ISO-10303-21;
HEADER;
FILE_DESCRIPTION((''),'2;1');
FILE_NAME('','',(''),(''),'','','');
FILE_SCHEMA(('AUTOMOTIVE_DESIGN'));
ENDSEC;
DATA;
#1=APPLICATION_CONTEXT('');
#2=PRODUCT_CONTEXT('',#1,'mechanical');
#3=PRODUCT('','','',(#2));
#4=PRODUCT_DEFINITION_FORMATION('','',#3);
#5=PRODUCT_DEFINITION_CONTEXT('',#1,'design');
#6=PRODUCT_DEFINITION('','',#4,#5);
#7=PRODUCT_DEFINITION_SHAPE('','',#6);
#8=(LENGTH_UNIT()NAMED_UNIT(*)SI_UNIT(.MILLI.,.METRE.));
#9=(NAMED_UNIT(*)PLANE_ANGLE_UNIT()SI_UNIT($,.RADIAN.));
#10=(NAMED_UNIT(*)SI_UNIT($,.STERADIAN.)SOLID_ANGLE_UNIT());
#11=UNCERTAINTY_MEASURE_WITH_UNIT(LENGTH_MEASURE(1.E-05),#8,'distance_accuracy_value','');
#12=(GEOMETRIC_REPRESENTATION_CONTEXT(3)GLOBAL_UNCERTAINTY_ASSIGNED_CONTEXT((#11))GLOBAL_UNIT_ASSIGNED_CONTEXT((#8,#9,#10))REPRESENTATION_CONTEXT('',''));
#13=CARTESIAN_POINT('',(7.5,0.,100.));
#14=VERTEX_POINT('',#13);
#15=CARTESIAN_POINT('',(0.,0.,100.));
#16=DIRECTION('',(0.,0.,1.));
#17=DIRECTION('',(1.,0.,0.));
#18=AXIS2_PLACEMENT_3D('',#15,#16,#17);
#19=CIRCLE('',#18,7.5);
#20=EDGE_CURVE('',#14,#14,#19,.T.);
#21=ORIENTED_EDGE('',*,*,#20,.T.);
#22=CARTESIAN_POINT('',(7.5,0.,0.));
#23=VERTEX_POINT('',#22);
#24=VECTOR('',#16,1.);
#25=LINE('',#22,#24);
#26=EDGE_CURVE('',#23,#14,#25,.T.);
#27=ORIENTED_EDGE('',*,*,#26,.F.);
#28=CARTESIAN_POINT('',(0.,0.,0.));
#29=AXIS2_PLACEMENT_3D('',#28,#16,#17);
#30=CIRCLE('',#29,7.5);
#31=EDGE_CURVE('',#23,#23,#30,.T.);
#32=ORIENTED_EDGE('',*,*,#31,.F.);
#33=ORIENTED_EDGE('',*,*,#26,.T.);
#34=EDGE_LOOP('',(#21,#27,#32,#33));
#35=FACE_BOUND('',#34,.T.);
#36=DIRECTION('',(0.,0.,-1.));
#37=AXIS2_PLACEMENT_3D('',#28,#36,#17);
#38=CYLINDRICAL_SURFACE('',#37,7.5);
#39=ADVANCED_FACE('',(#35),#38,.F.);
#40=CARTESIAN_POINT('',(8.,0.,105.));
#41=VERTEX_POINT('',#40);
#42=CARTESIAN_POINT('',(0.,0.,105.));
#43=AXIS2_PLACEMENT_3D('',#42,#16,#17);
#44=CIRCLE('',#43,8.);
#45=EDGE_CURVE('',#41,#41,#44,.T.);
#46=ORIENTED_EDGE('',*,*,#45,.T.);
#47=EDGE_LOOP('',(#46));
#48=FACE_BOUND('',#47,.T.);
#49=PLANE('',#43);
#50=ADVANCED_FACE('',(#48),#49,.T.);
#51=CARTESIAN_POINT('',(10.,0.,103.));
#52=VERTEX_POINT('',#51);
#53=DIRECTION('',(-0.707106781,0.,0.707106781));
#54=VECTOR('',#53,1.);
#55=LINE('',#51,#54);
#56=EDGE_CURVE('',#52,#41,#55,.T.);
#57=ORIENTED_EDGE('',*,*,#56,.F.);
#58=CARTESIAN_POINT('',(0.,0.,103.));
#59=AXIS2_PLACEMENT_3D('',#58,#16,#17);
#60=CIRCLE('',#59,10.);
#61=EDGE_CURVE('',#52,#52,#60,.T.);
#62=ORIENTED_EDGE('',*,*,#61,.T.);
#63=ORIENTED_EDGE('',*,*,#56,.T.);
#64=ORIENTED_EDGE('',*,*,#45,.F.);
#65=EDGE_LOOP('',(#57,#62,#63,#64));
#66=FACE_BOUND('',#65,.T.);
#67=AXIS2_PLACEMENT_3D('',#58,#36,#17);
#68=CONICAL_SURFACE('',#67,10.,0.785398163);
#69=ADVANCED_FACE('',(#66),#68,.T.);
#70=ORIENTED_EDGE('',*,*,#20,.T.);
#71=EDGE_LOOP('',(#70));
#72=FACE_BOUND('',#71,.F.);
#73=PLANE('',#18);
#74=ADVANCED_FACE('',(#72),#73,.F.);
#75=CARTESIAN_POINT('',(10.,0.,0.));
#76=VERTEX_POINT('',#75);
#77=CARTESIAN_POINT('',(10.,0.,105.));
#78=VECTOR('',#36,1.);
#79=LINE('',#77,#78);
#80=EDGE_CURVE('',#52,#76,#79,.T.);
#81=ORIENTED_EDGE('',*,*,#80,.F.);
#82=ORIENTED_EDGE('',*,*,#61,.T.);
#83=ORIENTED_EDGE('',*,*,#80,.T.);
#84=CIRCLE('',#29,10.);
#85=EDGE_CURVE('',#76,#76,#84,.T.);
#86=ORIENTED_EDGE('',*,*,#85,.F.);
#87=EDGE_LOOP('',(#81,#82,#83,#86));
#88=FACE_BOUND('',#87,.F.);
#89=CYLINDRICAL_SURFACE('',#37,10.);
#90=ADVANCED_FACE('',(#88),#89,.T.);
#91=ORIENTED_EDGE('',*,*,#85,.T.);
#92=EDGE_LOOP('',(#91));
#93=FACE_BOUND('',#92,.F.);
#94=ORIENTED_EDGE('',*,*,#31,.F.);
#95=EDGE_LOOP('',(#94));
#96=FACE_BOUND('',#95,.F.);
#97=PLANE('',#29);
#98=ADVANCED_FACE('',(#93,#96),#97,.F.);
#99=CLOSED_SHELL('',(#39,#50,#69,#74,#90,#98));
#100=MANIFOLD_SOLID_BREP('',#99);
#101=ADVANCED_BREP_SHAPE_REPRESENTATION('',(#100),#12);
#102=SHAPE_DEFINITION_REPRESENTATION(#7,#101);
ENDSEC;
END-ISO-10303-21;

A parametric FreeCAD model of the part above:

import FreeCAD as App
import Part
import Sketcher

V = App.Vector
Q = App.Units.Quantity


def edges_at(feature, points):
    """Names of the edges that pass closest to the given points."""
    edges = feature.Shape.Edges
    near = lambda p: min(range(len(edges)), key=lambda i: edges[i].distToShape(Part.Vertex(*p))[0])
    return sorted({f"Edge{near(p) + 1}" for p in points})

doc = App.newDocument("Part")
body = doc.addObject("PartDesign::Body", "Body")

sketch1 = doc.addObject("Sketcher::SketchObject", "Sketch")
body.addObject(sketch1)
sketch1.AttachmentSupport = (doc.XY_Plane, [""])
sketch1.MapMode = "FlatFace"
sketch1.addGeometry([
    Part.Circle(V(0, 0, 0), V(0, 0, 1), 10),
    Part.Circle(V(0, 0, 0), V(0, 0, 1), 8),
], False)
sketch1.addConstraint([
    Sketcher.Constraint("Coincident", 0, 3, -1, 1),
    Sketcher.Constraint("Coincident", 1, 3, -1, 1),
    Sketcher.Constraint("Diameter", 0, Q("20 mm")),
    Sketcher.Constraint("Diameter", 1, Q("15 mm")),
])
pad1 = doc.addObject("PartDesign::Pad", "Pad")
body.addObject(pad1)
pad1.Profile = sketch1
pad1.Length = 100

sketch2 = doc.addObject("Sketcher::SketchObject", "Sketch001")
body.addObject(sketch2)
sketch2.AttachmentSupport = (doc.XY_Plane, [""])
sketch2.MapMode = "FlatFace"
sketch2.AttachmentOffset = App.Placement(V(0, 0, 100), App.Rotation())
sketch2.addGeometry(Part.Circle(V(0, 0, 0), V(0, 0, 1), 10), False)
sketch2.addConstraint([
    Sketcher.Constraint("Coincident", 0, 3, -1, 1),
    Sketcher.Constraint("Diameter", 0, Q("20 mm")),
])
pad2 = doc.addObject("PartDesign::Pad", "Pad001")
body.addObject(pad2)
pad2.Profile = sketch2
pad2.Length = 5
doc.recompute()

chamfer = doc.addObject("PartDesign::Chamfer", "Chamfer")
body.addObject(chamfer)
chamfer.Base = (pad2, edges_at(pad2, [(-10, 0, 105)]))
chamfer.Size = 2

doc.recompute()
